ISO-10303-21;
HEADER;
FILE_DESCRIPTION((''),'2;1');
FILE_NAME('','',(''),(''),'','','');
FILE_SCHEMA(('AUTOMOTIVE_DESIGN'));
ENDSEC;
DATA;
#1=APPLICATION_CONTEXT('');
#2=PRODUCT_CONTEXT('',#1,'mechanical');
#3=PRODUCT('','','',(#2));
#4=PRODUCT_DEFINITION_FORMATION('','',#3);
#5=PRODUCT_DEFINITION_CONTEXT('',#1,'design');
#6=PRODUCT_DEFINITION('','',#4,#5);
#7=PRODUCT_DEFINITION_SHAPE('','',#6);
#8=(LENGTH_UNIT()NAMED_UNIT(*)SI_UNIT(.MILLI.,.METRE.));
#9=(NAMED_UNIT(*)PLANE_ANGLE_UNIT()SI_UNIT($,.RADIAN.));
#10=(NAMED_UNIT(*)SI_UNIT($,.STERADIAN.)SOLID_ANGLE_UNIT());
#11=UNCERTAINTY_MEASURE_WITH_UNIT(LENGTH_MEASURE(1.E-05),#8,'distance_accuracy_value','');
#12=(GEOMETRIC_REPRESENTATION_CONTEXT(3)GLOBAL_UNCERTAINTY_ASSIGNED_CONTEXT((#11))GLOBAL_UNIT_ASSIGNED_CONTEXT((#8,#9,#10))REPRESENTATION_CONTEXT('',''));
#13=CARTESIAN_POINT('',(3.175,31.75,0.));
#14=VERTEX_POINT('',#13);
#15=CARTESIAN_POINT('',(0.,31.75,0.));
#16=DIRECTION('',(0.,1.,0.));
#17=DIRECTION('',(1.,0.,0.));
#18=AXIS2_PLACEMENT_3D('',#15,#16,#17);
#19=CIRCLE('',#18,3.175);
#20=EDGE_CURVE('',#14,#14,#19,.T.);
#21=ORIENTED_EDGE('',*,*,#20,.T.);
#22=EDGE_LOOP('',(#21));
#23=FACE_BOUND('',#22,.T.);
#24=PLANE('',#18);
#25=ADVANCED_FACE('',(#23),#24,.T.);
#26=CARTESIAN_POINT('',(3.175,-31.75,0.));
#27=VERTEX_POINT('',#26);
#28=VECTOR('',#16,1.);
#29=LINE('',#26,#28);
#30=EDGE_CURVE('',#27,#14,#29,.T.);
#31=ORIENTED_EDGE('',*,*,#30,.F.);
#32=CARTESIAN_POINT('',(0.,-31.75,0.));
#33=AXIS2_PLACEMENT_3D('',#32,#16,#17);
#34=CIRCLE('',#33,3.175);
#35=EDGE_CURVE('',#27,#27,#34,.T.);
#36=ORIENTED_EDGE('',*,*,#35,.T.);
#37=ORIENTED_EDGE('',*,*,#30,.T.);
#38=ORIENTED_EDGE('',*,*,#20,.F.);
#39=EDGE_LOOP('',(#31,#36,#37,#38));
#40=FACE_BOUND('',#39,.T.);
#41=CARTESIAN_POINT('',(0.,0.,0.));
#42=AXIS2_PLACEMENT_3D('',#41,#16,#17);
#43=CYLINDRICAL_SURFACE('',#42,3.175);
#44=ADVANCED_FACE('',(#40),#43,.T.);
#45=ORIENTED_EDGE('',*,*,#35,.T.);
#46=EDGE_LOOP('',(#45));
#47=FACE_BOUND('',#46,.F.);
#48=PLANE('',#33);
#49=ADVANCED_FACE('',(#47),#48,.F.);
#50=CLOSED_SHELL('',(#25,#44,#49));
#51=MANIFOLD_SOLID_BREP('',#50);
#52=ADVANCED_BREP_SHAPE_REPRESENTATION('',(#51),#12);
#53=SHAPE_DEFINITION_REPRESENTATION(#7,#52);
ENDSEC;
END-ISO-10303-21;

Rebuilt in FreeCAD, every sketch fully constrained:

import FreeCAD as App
import Part
import Sketcher

V = App.Vector
Q = App.Units.Quantity

doc = App.newDocument("Part")
body = doc.addObject("PartDesign::Body", "Body")

# Sketch on XZ plane
sketch1 = doc.addObject("Sketcher::SketchObject", "Sketch")
body.addObject(sketch1)
sketch1.AttachmentSupport = (doc.XZ_Plane, [""])
sketch1.MapMode = "FlatFace"
sketch1.addGeometry(Part.Circle(V(0, 0, 0), V(0, 0, 1), 3.2), False)
sketch1.addConstraint([
    Sketcher.Constraint("Coincident", 0, 3, -1, 1),
    Sketcher.Constraint("Diameter", 0, Q("0.25 in")),
])
pad1 = doc.addObject("PartDesign::Pad", "Pad")
body.addObject(pad1)
pad1.Profile = sketch1
pad1.Length = Q("2.5 in")
pad1.Midplane = True

doc.recompute()
